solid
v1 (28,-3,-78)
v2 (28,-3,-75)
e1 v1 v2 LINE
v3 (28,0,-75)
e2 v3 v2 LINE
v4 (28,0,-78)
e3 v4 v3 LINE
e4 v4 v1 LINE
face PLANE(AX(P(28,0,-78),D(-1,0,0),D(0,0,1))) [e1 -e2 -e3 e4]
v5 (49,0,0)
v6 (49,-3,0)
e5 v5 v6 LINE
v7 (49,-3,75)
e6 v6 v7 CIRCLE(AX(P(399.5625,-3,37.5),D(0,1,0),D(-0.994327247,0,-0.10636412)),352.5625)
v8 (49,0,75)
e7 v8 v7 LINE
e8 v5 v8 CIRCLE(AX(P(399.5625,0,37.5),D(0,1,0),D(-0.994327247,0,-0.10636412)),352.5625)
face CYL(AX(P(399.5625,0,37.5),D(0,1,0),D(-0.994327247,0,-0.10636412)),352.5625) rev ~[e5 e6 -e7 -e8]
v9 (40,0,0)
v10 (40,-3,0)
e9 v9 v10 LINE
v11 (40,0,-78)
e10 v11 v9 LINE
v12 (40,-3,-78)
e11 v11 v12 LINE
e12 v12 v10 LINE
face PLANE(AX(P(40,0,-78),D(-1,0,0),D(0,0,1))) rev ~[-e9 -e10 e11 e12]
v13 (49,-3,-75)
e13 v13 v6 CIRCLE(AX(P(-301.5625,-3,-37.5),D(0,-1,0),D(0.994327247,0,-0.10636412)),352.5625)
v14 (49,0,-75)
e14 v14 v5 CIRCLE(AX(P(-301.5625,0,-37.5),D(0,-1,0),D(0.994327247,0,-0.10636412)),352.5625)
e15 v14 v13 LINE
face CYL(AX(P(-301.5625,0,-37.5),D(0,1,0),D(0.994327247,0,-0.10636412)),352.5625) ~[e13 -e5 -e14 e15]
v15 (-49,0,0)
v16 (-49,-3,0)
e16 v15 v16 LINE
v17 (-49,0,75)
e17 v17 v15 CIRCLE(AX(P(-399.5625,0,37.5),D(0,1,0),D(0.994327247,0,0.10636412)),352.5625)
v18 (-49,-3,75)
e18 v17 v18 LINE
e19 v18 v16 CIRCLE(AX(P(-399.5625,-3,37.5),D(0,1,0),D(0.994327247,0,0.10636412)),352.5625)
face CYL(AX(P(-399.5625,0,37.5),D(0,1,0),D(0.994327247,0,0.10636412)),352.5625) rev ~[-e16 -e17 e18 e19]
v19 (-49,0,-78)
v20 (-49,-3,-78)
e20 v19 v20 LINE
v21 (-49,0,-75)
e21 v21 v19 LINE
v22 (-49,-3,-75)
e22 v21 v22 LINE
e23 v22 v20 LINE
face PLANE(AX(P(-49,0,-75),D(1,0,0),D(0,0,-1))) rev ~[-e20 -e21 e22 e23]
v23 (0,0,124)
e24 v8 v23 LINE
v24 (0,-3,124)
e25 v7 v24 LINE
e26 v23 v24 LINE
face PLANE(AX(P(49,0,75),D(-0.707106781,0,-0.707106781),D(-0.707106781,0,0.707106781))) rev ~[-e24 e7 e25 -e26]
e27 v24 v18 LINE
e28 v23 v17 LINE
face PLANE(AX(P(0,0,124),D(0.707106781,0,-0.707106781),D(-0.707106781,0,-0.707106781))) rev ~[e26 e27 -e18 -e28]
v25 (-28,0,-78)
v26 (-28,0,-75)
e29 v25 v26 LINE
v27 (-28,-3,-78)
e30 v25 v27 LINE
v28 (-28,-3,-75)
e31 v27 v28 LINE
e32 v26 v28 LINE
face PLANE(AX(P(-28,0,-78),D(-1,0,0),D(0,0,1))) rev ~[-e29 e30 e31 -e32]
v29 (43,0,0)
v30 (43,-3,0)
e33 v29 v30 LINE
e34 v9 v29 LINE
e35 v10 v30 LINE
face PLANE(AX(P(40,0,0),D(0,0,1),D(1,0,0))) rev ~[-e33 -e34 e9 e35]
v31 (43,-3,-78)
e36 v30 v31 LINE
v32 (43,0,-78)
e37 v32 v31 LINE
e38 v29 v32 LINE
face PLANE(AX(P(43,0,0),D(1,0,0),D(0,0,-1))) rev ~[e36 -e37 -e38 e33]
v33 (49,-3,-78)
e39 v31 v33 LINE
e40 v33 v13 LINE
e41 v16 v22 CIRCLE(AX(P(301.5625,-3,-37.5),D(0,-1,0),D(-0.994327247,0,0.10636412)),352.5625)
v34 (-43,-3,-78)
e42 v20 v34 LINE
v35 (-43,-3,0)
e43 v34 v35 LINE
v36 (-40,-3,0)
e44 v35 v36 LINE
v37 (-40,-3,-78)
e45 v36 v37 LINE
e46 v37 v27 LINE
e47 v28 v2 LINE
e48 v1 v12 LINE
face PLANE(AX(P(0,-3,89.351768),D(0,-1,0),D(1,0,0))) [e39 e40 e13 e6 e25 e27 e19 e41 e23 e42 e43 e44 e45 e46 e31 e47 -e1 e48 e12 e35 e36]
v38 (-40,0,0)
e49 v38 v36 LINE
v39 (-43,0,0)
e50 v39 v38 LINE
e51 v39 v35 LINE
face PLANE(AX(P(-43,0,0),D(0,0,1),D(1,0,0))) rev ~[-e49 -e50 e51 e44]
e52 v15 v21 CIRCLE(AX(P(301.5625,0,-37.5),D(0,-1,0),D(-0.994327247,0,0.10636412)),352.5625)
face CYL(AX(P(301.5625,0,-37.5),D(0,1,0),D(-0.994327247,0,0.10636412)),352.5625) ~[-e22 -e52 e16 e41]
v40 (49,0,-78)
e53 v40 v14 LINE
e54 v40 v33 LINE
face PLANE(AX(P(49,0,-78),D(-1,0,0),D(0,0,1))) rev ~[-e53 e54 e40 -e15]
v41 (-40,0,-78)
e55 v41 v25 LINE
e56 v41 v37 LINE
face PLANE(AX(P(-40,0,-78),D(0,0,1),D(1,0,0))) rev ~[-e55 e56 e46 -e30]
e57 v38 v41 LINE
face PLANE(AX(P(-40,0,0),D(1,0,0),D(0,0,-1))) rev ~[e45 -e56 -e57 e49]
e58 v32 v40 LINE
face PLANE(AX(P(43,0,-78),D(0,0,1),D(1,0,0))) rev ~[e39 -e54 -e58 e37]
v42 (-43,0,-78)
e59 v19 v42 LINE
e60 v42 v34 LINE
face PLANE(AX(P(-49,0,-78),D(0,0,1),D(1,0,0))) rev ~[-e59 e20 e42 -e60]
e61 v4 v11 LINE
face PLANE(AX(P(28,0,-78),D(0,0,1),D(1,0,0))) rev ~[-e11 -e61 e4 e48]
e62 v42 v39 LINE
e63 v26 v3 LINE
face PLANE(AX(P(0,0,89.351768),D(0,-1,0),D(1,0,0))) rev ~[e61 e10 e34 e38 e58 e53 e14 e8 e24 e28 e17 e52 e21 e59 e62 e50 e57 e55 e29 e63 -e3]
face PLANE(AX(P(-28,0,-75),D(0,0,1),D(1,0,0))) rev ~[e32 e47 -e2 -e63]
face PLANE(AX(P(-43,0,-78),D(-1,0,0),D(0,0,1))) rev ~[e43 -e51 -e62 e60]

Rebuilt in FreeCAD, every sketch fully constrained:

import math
import FreeCAD as App
import Part
import Sketcher
from FreeCAD import Vector

doc = App.newDocument("Part")
body = doc.addObject("PartDesign::Body", "Body")

sketch1 = doc.addObject("Sketcher::SketchObject", "Sketch")
body.addObject(sketch1)
sketch1.AttachmentSupport = (doc.XZ_Plane, [""])
sketch1.MapMode = "FlatFace"
sketch1.addGeometry(Part.LineSegment(Vector(49, 75, 0), Vector(0, 124, 0)), False)
sketch1.addGeometry(Part.LineSegment(Vector(0, 124, 0), Vector(-49, 75, 0)), False)
sketch1.addGeometry(Part.ArcOfCircle(Part.Circle(Vector(-399.6, 37.5, 0), Vector(0, 0, 1), 352.6), math.radians(-6.11), math.radians(6.11)), False)
sketch1.addGeometry(Part.ArcOfCircle(Part.Circle(Vector(301.6, -37.5, 0), Vector(0, 0, 1), 352.6), math.radians(173.89), math.radians(186.11)), False)
sketch1.addGeometry(Part.LineSegment(Vector(-49, -75, 0), Vector(-49, -78, 0)), False)
sketch1.addGeometry(Part.LineSegment(Vector(-49, -78, 0), Vector(-43, -78, 0)), False)
sketch1.addGeometry(Part.LineSegment(Vector(-43, -78, 0), Vector(-43, 0, 0)), False)
sketch1.addGeometry(Part.LineSegment(Vector(-43, 0, 0), Vector(-40, 0, 0)), False)
sketch1.addGeometry(Part.LineSegment(Vector(-40, 0, 0), Vector(-40, -78, 0)), False)
sketch1.addGeometry(Part.LineSegment(Vector(-40, -78, 0), Vector(-28, -78, 0)), False)
sketch1.addGeometry(Part.LineSegment(Vector(-28, -78, 0), Vector(-28, -75, 0)), False)
sketch1.addGeometry(Part.LineSegment(Vector(-28, -75, 0), Vector(28, -75, 0)), False)
sketch1.addGeometry(Part.LineSegment(Vector(28, -75, 0), Vector(28, -78, 0)), False)
sketch1.addGeometry(Part.LineSegment(Vector(28, -78, 0), Vector(40, -78, 0)), False)
sketch1.addGeometry(Part.LineSegment(Vector(40, -78, 0), Vector(40, 0, 0)), False)
sketch1.addGeometry(Part.LineSegment(Vector(40, 0, 0), Vector(43, 0, 0)), False)
sketch1.addGeometry(Part.LineSegment(Vector(43, 0, 0), Vector(43, -78, 0)), False)
sketch1.addGeometry(Part.LineSegment(Vector(43, -78, 0), Vector(49, -78, 0)), False)
sketch1.addGeometry(Part.LineSegment(Vector(49, -78, 0), Vector(49, -75, 0)), False)
sketch1.addGeometry(Part.ArcOfCircle(Part.Circle(Vector(-301.6, -37.5, 0), Vector(0, 0, 1), 352.6), math.radians(-6.11), math.radians(6.11)), False)
sketch1.addGeometry(Part.ArcOfCircle(Part.Circle(Vector(399.6, 37.5, 0), Vector(0, 0, 1), 352.6), math.radians(173.89), math.radians(186.11)), False)
sketch1.addConstraint(Sketcher.Constraint("Coincident", 0, 2, 1, 1))
sketch1.addConstraint(Sketcher.Constraint("Coincident", 1, 2, 2, 2))
sketch1.addConstraint(Sketcher.Constraint("Tangent", 2, 1, 3, 1))
sketch1.addConstraint(Sketcher.Constraint("Coincident", 3, 2, 4, 1))
sketch1.addConstraint(Sketcher.Constraint("Coincident", 4, 2, 5, 1))
sketch1.addConstraint(Sketcher.Constraint("Coincident", 5, 2, 6, 1))
sketch1.addConstraint(Sketcher.Constraint("Coincident", 6, 2, 7, 1))
sketch1.addConstraint(Sketcher.Constraint("Coincident", 7, 2, 8, 1))
sketch1.addConstraint(Sketcher.Constraint("Coincident", 8, 2, 9, 1))
sketch1.addConstraint(Sketcher.Constraint("Coincident", 9, 2, 10, 1))
sketch1.addConstraint(Sketcher.Constraint("Coincident", 10, 2, 11, 1))
sketch1.addConstraint(Sketcher.Constraint("Coincident", 11, 2, 12, 1))
sketch1.addConstraint(Sketcher.Constraint("Coincident", 12, 2, 13, 1))
sketch1.addConstraint(Sketcher.Constraint("Coincident", 13, 2, 14, 1))
sketch1.addConstraint(Sketcher.Constraint("Coincident", 14, 2, 15, 1))
sketch1.addConstraint(Sketcher.Constraint("Coincident", 15, 2, 16, 1))
sketch1.addConstraint(Sketcher.Constraint("Coincident", 16, 2, 17, 1))
sketch1.addConstraint(Sketcher.Constraint("Coincident", 17, 2, 18, 1))
sketch1.addConstraint(Sketcher.Constraint("Coincident", 18, 2, 19, 1))
sketch1.addConstraint(Sketcher.Constraint("Tangent", 19, 2, 20, 2))
sketch1.addConstraint(Sketcher.Constraint("Coincident", 20, 1, 0, 1))
sketch1.addConstraint(Sketcher.Constraint("Vertical", 4))
sketch1.addConstraint(Sketcher.Constraint("Horizontal", 5))
sketch1.addConstraint(Sketcher.Constraint("Vertical", 6))
sketch1.addConstraint(Sketcher.Constraint("Horizontal", 7))
sketch1.addConstraint(Sketcher.Constraint("Vertical", 8))
sketch1.addConstraint(Sketcher.Constraint("Horizontal", 9))
sketch1.addConstraint(Sketcher.Constraint("Vertical", 10))
sketch1.addConstraint(Sketcher.Constraint("Horizontal", 11))
sketch1.addConstraint(Sketcher.Constraint("Vertical", 12))
sketch1.addConstraint(Sketcher.Constraint("Horizontal", 13))
sketch1.addConstraint(Sketcher.Constraint("Vertical", 14))
sketch1.addConstraint(Sketcher.Constraint("Horizontal", 15))
sketch1.addConstraint(Sketcher.Constraint("Vertical", 16))
sketch1.addConstraint(Sketcher.Constraint("Horizontal", 17))
sketch1.addConstraint(Sketcher.Constraint("Vertical", 18))
sketch1.addConstraint(Sketcher.Constraint("Equal", 2, 3))
sketch1.addConstraint(Sketcher.Constraint("Equal", 3, 19))
sketch1.addConstraint(Sketcher.Constraint("Equal", 19, 20))
sketch1.addConstraint(Sketcher.Constraint("Symmetric", 7, 2, 14, 2, -1, 1))
sketch1.addConstraint(Sketcher.Constraint("Symmetric", 1, 2, 18, 2, -1, 1))
sketch1.addConstraint(Sketcher.Constraint("Symmetric", 2, 1, 19, 2, -1, 1))
sketch1.addConstraint(Sketcher.Constraint("Symmetric", 3, 2, 20, 1, -1, 1))
sketch1.addConstraint(Sketcher.Constraint("Symmetric", 3, 3, 19, 3, -2))
sketch1.addConstraint(Sketcher.Constraint("Symmetric", 9, 2, 12, 2, -2))
sketch1.addConstraint(Sketcher.Constraint("Symmetric", 6, 2, 15, 2, -2))
sketch1.addConstraint(Sketcher.Constraint("PointOnObject", 0, 2, -2))
sketch1.addConstraint(Sketcher.Constraint("Perpendicular", 0, 1))
sketch1.addConstraint(Sketcher.Constraint("Horizontal", 5, 2, 8, 2))
sketch1.addConstraint(Sketcher.Constraint("Horizontal", 13, 2, 16, 2))
sketch1.addConstraint(Sketcher.Constraint("Horizontal", 11, 2, 18, 2))
sketch1.addConstraint(Sketcher.Constraint("Equal", 15, 4))
sketch1.addConstraint(Sketcher.Constraint("DistanceX", 5, 1, 5, 2, 6.0))
sketch1.addConstraint(Sketcher.Constraint("DistanceX", 7, 1, 7, 2, 3.0))
sketch1.addConstraint(Sketcher.Constraint("DistanceX", 9, 1, 9, 2, 12.0))
sketch1.addConstraint(Sketcher.Constraint("DistanceX", 11, 1, 11, 2, 56.0))
sketch1.addConstraint(Sketcher.Constraint("DistanceY", 6, 1, 6, 2, 78.0))
sketch1.addConstraint(Sketcher.Constraint("Radius", 2, 352.5625))
pad1 = doc.addObject("PartDesign::Pad", "Pad")
body.addObject(pad1)
pad1.Profile = sketch1
pad1.Length = 3

doc.recompute()
